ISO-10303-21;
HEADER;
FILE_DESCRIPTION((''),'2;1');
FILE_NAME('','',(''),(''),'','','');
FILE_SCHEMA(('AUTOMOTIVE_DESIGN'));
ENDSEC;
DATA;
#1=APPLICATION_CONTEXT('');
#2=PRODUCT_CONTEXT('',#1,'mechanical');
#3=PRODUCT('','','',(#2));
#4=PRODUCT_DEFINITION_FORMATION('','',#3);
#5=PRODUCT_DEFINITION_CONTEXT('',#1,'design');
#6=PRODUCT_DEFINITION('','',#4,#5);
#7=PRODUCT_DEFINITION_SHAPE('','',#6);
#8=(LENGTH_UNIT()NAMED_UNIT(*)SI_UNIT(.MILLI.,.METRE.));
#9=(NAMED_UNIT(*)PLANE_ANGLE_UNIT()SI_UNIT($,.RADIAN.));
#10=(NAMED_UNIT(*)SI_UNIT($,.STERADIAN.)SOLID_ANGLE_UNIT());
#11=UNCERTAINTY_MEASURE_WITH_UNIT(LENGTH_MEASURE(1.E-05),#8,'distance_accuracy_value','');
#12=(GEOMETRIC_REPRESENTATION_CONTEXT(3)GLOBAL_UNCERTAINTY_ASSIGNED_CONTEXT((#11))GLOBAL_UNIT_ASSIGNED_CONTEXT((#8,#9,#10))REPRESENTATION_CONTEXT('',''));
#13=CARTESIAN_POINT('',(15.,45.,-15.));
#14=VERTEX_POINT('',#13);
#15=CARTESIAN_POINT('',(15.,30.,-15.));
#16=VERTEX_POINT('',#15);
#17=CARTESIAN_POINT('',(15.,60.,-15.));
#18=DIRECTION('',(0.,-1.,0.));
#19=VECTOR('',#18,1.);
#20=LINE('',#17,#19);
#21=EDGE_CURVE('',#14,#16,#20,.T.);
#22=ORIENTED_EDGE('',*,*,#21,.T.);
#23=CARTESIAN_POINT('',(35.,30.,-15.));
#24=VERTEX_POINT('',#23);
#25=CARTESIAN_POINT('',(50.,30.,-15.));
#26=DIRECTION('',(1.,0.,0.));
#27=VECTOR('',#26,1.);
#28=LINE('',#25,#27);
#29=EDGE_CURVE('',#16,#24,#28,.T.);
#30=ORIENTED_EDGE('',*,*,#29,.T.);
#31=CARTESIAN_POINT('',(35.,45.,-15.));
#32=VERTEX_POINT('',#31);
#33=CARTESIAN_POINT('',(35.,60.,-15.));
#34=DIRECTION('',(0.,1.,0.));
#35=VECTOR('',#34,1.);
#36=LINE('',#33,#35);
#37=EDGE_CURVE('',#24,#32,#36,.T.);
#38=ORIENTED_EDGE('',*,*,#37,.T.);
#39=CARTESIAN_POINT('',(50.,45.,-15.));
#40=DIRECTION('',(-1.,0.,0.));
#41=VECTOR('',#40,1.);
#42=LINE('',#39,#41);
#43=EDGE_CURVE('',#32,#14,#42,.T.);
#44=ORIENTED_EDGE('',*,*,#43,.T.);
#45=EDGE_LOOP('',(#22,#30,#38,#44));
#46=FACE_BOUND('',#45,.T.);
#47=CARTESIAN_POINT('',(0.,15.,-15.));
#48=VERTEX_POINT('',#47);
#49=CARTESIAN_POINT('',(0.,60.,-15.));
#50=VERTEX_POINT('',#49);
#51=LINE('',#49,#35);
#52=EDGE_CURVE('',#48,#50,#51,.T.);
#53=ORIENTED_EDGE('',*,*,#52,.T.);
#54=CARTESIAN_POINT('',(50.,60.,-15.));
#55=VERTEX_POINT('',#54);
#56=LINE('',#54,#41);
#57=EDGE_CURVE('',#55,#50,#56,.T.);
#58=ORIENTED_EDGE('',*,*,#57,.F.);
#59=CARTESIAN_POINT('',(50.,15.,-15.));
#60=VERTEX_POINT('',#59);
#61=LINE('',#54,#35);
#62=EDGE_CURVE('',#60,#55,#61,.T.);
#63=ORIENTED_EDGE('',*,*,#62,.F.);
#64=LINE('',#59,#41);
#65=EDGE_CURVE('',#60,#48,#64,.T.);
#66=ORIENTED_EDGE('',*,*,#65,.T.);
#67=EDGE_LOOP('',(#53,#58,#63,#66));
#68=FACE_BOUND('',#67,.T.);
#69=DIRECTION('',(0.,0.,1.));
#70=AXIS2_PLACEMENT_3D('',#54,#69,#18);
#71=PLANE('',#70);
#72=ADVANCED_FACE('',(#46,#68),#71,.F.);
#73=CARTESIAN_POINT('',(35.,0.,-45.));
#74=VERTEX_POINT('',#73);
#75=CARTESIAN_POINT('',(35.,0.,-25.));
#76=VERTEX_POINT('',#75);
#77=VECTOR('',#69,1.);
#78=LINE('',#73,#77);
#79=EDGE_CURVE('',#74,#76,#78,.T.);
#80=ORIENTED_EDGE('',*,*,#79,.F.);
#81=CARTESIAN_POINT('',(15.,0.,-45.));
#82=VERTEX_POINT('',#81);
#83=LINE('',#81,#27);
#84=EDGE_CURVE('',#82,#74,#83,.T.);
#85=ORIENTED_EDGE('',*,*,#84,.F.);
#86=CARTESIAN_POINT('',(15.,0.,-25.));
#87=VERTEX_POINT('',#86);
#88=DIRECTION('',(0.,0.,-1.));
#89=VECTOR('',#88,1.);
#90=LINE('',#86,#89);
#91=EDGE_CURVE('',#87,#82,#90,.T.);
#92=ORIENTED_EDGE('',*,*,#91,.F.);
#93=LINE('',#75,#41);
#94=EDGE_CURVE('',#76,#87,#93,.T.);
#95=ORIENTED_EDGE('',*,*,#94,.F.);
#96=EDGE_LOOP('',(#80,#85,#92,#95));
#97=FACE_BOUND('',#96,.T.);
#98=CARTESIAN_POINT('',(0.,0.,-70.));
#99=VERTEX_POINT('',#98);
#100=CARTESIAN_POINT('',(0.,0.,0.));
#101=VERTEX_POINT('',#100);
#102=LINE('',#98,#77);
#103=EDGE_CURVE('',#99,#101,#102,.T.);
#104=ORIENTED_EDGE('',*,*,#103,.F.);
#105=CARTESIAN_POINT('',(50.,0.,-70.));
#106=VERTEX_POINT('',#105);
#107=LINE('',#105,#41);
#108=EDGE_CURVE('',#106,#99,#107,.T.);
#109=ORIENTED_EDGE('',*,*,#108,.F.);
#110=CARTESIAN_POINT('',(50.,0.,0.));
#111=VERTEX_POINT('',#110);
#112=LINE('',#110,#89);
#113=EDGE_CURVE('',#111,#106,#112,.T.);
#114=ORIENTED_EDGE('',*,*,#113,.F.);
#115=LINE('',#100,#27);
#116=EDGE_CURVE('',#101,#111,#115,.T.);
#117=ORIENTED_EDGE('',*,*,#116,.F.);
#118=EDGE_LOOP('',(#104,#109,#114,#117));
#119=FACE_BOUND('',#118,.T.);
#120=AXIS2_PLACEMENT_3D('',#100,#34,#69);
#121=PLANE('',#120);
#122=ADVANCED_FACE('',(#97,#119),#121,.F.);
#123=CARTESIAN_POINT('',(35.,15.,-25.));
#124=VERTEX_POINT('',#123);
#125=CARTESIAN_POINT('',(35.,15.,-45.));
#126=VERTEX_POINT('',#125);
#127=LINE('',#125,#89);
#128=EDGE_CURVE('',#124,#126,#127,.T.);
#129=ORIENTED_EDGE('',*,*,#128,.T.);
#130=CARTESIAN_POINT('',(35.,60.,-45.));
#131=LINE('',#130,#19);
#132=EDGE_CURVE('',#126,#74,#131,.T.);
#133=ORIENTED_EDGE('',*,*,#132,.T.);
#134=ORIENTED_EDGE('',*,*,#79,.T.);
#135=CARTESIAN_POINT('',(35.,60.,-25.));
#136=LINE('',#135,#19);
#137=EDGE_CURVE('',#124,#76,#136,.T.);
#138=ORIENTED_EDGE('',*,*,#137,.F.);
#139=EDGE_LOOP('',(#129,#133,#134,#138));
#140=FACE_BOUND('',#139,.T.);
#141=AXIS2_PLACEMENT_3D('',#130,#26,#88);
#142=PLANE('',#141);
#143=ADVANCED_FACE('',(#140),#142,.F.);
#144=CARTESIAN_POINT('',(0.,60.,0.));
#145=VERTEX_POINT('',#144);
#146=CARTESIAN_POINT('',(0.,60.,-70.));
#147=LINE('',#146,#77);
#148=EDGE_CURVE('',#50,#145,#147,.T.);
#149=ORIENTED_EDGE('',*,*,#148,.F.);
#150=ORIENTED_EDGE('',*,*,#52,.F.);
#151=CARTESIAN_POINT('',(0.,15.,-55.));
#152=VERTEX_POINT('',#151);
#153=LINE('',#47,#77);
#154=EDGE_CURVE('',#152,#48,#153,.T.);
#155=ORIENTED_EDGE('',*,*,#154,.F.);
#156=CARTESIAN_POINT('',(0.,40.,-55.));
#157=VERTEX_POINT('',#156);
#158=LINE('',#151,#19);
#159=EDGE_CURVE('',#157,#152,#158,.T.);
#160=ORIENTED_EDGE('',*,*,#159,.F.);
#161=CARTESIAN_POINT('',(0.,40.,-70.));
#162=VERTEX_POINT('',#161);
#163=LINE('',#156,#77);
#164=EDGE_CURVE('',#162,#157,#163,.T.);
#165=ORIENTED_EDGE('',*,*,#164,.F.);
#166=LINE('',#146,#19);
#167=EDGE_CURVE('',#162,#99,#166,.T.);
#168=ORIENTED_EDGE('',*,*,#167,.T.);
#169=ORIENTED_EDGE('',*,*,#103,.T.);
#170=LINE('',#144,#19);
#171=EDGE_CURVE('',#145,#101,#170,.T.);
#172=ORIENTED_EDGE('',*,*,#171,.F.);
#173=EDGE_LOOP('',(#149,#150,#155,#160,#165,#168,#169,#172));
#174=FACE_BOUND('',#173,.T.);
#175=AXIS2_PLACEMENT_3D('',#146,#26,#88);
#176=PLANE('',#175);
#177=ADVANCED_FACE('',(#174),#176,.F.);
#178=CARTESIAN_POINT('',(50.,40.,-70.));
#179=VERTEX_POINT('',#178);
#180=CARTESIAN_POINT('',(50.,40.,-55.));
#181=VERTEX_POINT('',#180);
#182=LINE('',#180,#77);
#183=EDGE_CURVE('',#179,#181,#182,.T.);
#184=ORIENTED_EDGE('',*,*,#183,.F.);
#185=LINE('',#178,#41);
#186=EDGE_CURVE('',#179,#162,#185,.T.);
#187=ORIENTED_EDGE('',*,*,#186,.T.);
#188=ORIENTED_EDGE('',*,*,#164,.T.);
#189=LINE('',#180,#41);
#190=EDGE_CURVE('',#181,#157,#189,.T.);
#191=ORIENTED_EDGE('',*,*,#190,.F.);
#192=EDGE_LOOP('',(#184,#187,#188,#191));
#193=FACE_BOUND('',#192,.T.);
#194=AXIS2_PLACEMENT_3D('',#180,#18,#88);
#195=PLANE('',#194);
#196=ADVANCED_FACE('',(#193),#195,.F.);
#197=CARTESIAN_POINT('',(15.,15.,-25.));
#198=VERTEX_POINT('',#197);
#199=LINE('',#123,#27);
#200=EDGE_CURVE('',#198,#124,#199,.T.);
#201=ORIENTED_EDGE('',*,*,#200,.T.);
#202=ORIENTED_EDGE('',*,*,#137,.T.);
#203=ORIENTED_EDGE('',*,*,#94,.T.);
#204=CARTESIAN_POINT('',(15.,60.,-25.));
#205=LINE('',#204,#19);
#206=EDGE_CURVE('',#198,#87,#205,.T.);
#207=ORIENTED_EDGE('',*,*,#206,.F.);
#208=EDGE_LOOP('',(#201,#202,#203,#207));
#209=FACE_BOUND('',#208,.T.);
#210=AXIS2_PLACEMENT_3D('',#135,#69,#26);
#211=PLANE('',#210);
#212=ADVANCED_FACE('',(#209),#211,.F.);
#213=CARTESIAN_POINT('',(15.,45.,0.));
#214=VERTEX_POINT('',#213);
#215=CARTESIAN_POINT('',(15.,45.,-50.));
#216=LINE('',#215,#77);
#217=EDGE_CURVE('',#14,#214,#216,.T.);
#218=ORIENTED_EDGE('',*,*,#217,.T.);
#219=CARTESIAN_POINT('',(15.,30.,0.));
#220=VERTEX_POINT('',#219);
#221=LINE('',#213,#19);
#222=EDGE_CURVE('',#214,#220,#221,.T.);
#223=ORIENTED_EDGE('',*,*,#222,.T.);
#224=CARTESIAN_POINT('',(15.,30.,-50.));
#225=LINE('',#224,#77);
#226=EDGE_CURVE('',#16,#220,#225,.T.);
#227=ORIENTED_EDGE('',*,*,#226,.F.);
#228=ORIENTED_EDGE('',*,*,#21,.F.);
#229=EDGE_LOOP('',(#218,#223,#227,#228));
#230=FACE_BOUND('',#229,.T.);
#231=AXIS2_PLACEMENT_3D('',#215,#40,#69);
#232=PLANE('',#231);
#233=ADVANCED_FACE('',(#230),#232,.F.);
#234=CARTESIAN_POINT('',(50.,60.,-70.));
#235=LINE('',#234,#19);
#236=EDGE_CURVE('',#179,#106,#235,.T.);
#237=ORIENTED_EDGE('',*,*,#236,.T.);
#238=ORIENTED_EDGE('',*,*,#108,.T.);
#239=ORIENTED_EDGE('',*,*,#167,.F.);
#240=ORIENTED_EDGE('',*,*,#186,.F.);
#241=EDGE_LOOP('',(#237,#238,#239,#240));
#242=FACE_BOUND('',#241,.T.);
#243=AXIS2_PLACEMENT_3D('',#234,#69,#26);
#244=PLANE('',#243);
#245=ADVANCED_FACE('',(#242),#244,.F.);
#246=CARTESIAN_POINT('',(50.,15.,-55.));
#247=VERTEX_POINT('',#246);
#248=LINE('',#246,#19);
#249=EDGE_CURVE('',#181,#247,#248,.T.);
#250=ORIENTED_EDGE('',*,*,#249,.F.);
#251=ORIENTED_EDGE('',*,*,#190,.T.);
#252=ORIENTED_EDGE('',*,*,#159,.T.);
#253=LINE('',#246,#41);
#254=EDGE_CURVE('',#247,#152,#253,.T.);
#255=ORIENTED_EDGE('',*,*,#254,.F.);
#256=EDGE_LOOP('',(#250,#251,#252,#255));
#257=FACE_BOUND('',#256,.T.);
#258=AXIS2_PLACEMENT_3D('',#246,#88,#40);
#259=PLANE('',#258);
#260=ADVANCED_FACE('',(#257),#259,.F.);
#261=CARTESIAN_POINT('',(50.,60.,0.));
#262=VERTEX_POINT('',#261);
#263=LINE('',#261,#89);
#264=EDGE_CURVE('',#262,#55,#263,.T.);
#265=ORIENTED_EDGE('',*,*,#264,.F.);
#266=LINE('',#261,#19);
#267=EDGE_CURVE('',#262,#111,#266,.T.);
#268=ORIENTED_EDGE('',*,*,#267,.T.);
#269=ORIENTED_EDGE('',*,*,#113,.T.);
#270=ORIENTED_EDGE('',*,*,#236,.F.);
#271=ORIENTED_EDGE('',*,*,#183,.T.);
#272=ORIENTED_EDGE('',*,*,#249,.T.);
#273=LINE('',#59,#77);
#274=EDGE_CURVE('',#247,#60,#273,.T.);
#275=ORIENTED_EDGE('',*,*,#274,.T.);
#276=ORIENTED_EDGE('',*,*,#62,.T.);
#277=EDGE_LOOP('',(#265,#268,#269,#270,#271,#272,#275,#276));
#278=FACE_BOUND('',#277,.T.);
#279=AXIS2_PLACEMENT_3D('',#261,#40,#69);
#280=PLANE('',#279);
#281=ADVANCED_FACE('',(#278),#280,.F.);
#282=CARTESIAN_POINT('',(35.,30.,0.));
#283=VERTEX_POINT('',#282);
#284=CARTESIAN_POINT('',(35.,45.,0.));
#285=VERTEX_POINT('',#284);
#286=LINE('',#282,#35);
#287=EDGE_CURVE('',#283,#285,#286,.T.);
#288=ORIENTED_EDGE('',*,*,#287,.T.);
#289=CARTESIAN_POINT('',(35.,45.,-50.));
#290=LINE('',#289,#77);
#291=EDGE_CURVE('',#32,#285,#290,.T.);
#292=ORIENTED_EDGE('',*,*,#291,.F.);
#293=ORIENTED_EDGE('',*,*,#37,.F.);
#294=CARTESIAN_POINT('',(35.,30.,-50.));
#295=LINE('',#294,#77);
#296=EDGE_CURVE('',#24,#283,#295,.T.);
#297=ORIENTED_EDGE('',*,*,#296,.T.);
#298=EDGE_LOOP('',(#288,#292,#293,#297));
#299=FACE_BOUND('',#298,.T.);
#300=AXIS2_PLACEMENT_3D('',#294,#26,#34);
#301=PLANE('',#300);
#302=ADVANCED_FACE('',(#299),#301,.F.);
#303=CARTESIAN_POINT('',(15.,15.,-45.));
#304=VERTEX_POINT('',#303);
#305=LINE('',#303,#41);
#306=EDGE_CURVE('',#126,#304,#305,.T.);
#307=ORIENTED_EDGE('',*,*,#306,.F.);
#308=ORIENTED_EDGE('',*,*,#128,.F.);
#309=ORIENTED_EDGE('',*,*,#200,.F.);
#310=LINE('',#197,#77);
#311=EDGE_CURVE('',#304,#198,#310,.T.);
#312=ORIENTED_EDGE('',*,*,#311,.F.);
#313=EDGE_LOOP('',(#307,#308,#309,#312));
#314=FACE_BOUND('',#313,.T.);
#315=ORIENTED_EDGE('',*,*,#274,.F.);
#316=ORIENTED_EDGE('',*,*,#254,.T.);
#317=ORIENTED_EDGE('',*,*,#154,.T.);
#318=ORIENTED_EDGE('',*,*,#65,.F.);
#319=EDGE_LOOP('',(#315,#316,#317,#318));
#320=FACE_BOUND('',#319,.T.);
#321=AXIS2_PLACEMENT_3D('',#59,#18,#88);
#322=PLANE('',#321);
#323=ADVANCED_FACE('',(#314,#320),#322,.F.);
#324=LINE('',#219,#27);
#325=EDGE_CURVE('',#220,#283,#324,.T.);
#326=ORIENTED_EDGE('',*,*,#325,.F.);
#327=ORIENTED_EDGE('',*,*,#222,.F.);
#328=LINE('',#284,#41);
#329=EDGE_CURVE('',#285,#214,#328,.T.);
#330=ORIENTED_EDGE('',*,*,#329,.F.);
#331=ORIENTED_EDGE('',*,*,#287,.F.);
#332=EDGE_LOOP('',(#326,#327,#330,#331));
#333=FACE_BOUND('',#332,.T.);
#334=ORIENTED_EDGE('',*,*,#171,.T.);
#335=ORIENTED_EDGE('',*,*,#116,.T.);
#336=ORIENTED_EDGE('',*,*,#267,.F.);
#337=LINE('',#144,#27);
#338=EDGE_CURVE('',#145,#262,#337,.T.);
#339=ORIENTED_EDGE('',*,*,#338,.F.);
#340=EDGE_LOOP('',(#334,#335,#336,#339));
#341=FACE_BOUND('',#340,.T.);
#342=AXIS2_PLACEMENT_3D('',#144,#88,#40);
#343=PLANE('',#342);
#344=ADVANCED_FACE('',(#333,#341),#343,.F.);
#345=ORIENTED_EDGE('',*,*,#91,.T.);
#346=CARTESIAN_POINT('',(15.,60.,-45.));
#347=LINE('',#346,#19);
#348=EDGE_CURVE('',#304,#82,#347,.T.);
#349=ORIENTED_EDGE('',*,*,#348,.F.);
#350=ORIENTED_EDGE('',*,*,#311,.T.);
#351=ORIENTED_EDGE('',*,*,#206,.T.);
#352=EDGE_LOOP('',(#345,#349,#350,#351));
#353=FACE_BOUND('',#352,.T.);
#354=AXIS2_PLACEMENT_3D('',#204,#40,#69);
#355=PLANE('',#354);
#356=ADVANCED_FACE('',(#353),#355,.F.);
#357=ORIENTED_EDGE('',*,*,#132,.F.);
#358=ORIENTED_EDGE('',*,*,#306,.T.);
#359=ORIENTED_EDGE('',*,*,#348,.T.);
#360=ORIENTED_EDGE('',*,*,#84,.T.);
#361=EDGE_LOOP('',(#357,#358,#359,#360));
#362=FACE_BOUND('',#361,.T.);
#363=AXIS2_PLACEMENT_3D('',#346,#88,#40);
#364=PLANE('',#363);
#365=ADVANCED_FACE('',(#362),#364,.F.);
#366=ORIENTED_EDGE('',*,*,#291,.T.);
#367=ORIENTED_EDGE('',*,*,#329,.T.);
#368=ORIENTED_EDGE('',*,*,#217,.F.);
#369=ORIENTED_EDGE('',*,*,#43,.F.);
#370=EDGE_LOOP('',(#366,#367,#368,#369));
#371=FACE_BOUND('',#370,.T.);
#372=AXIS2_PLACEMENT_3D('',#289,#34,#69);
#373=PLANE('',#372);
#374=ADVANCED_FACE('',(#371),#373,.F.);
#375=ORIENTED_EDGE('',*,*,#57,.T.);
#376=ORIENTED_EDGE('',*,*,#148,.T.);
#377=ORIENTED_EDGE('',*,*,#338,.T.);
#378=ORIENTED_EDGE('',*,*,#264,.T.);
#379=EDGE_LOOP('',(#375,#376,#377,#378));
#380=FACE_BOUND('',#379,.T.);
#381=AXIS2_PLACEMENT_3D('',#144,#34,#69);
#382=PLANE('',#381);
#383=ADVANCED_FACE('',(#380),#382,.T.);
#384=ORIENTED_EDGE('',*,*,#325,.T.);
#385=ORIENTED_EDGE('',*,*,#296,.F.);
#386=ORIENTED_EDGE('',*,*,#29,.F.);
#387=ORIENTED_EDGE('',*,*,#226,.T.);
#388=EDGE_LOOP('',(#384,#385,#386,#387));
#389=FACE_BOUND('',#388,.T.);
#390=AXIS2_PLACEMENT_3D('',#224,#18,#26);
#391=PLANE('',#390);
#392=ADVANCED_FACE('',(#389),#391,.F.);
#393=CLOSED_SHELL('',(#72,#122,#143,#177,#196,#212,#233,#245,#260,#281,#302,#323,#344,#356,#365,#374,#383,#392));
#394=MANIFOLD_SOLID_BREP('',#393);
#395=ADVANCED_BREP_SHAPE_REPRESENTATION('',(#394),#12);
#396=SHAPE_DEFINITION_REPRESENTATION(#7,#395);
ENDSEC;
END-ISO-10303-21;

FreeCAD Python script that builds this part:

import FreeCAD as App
import Part
import Sketcher

V = App.Vector

doc = App.newDocument("Part")
params = doc.addObject("Spreadsheet::Sheet", "Params")
for row, (alias, value) in enumerate([
    ("sketch1_width", "50 mm"),
    ("sketch1_height", "70 mm"),
    ("pad1_length", "60 mm"),
    ("sketch2_width", "20 mm"),
    ("pocket1_length", "60 mm"),
    ("sketch3_width", "45 mm"),
    ("sketch3_width2", "20 mm"),
    ("sketch3_height", "55 mm"),
    ("sketch3_height2", "15 mm"),
    ("pocket2_length", "50 mm"),
    ("sketch4_width", "20 mm"),
    ("sketch4_height", "15 mm"),
    ("pocket3_length", "50 mm"),
], start=1):
    params.set(f"A{row}", alias)
    params.set(f"B{row}", "=" + value)
    params.setAlias(f"B{row}", alias)

body = doc.addObject("PartDesign::Body", "Body")

# Sketch on XZ plane
sketch1 = doc.addObject("Sketcher::SketchObject", "Sketch")
body.addObject(sketch1)
sketch1.AttachmentSupport = (doc.XZ_Plane, [""])
sketch1.MapMode = "FlatFace"
sketch1.addGeometry(Part.LineSegment(V(0, -70, 0), V(0, 0, 0)), False)
sketch1.addGeometry(Part.LineSegment(V(0, 0, 0), V(50, 0, 0)), False)
sketch1.addGeometry(Part.LineSegment(V(50, 0, 0), V(50, -70, 0)), False)
sketch1.addGeometry(Part.LineSegment(V(50, -70, 0), V(0, -70, 0)), False)
sketch1.addConstraint(Sketcher.Constraint("Coincident", 0, 2, 1, 1))
sketch1.addConstraint(Sketcher.Constraint("Coincident", 1, 2, 2, 1))
sketch1.addConstraint(Sketcher.Constraint("Coincident", 2, 2, 3, 1))
sketch1.addConstraint(Sketcher.Constraint("Coincident", 3, 2, 0, 1))
sketch1.addConstraint(Sketcher.Constraint("Vertical", 0))
sketch1.addConstraint(Sketcher.Constraint("Horizontal", 1))
sketch1.addConstraint(Sketcher.Constraint("Vertical", 2))
sketch1.addConstraint(Sketcher.Constraint("Horizontal", 3))
sketch1.addConstraint(Sketcher.Constraint("Coincident", 0, 2, -1, 1))
sketch1.addConstraint(Sketcher.Constraint("DistanceX", 1, 1, 1, 2, 50.0))
sketch1.addConstraint(Sketcher.Constraint("DistanceY", 0, 1, 0, 2, 70.0))
sketch1.setExpression("Constraints[9]", "Params.sketch1_width")
sketch1.setExpression("Constraints[10]", "Params.sketch1_height")
pad1 = doc.addObject("PartDesign::Pad", "Pad")
body.addObject(pad1)
pad1.Profile = sketch1
pad1.setExpression("Length", "Params.pad1_length")
pad1.Reversed = True

# Sketch on XZ plane
sketch2 = doc.addObject("Sketcher::SketchObject", "Sketch001")
body.addObject(sketch2)
sketch2.AttachmentSupport = (doc.XZ_Plane, [""])
sketch2.MapMode = "FlatFace"
sketch2.addGeometry(Part.LineSegment(V(15, -25, 0), V(15, -45, 0)), False)
sketch2.addGeometry(Part.LineSegment(V(15, -45, 0), V(35, -45, 0)), False)
sketch2.addGeometry(Part.LineSegment(V(35, -45, 0), V(35, -25, 0)), False)
sketch2.addGeometry(Part.LineSegment(V(35, -25, 0), V(15, -25, 0)), False)
sketch2.addConstraint(Sketcher.Constraint("Coincident", 0, 2, 1, 1))
sketch2.addConstraint(Sketcher.Constraint("Coincident", 1, 2, 2, 1))
sketch2.addConstraint(Sketcher.Constraint("Coincident", 2, 2, 3, 1))
sketch2.addConstraint(Sketcher.Constraint("Coincident", 3, 2, 0, 1))
sketch2.addConstraint(Sketcher.Constraint("Vertical", 0))
sketch2.addConstraint(Sketcher.Constraint("Horizontal", 1))
sketch2.addConstraint(Sketcher.Constraint("Vertical", 2))
sketch2.addConstraint(Sketcher.Constraint("Horizontal", 3))
sketch2.addConstraint(Sketcher.Constraint("Equal", 3, 0))
sketch2.addConstraint(Sketcher.Constraint("DistanceX", 1, 1, 1, 2, 20.0))
sketch2.addConstraint(Sketcher.Constraint("DistanceX", -1, 1, 0, 2, 15.0))
sketch2.addConstraint(Sketcher.Constraint("DistanceY", 0, 2, -1, 1, 45.0))
sketch2.setExpression("Constraints[9]", "Params.sketch2_width")
pocket1 = doc.addObject("PartDesign::Pocket", "Pocket")
body.addObject(pocket1)
pocket1.Profile = sketch2
pocket1.setExpression("Length", "Params.pocket1_length")

# Sketch on YZ plane
sketch3 = doc.addObject("Sketcher::SketchObject", "Sketch002")
body.addObject(sketch3)
sketch3.AttachmentSupport = (doc.YZ_Plane, [""])
sketch3.MapMode = "FlatFace"
sketch3.addGeometry(Part.LineSegment(V(15, -15, 0), V(60, -15, 0)), False)
sketch3.addGeometry(Part.LineSegment(V(60, -15, 0), V(60, -70, 0)), False)
sketch3.addGeometry(Part.LineSegment(V(60, -70, 0), V(40, -70, 0)), False)
sketch3.addGeometry(Part.LineSegment(V(40, -70, 0), V(40, -55, 0)), False)
sketch3.addGeometry(Part.LineSegment(V(40, -55, 0), V(15, -55, 0)), False)
sketch3.addGeometry(Part.LineSegment(V(15, -55, 0), V(15, -15, 0)), False)
sketch3.addConstraint(Sketcher.Constraint("Coincident", 0, 2, 1, 1))
sketch3.addConstraint(Sketcher.Constraint("Coincident", 1, 2, 2, 1))
sketch3.addConstraint(Sketcher.Constraint("Coincident", 2, 2, 3, 1))
sketch3.addConstraint(Sketcher.Constraint("Coincident", 3, 2, 4, 1))
sketch3.addConstraint(Sketcher.Constraint("Coincident", 4, 2, 5, 1))
sketch3.addConstraint(Sketcher.Constraint("Coincident", 5, 2, 0, 1))
sketch3.addConstraint(Sketcher.Constraint("Horizontal", 0))
sketch3.addConstraint(Sketcher.Constraint("Vertical", 1))
sketch3.addConstraint(Sketcher.Constraint("Horizontal", 2))
sketch3.addConstraint(Sketcher.Constraint("Vertical", 3))
sketch3.addConstraint(Sketcher.Constraint("Horizontal", 4))
sketch3.addConstraint(Sketcher.Constraint("Vertical", 5))
sketch3.addConstraint(Sketcher.Constraint("DistanceX", 0, 1, 0, 2, 45.0))
sketch3.addConstraint(Sketcher.Constraint("DistanceX", 2, 2, 2, 1, 20.0))
sketch3.addConstraint(Sketcher.Constraint("DistanceY", 1, 2, 1, 1, 55.0))
sketch3.addConstraint(Sketcher.Constraint("DistanceY", 3, 1, 3, 2, 15.0))
sketch3.addConstraint(Sketcher.Constraint("DistanceX", -1, 1, 0, 2, 60.0))
sketch3.addConstraint(Sketcher.Constraint("DistanceY", 0, 2, -1, 1, 15.0))
sketch3.setExpression("Constraints[12]", "Params.sketch3_width")
sketch3.setExpression("Constraints[13]", "Params.sketch3_width2")
sketch3.setExpression("Constraints[14]", "Params.sketch3_height")
sketch3.setExpression("Constraints[15]", "Params.sketch3_height2")
pocket2 = doc.addObject("PartDesign::Pocket", "Pocket001")
body.addObject(pocket2)
pocket2.Profile = sketch3
pocket2.setExpression("Length", "Params.pocket2_length")
pocket2.Reversed = True

# Sketch on XY plane
sketch4 = doc.addObject("Sketcher::SketchObject", "Sketch003")
body.addObject(sketch4)
sketch4.AttachmentSupport = (doc.XY_Plane, [""])
sketch4.MapMode = "FlatFace"
sketch4.addGeometry(Part.LineSegment(V(15, 45, 0), V(15, 30, 0)), False)
sketch4.addGeometry(Part.LineSegment(V(15, 30, 0), V(35, 30, 0)), False)
sketch4.addGeometry(Part.LineSegment(V(35, 30, 0), V(35, 45, 0)), False)
sketch4.addGeometry(Part.LineSegment(V(35, 45, 0), V(15, 45, 0)), False)
sketch4.addConstraint(Sketcher.Constraint("Coincident", 0, 2, 1, 1))
sketch4.addConstraint(Sketcher.Constraint("Coincident", 1, 2, 2, 1))
sketch4.addConstraint(Sketcher.Constraint("Coincident", 2, 2, 3, 1))
sketch4.addConstraint(Sketcher.Constraint("Coincident", 3, 2, 0, 1))
sketch4.addConstraint(Sketcher.Constraint("Vertical", 0))
sketch4.addConstraint(Sketcher.Constraint("Horizontal", 1))
sketch4.addConstraint(Sketcher.Constraint("Vertical", 2))
sketch4.addConstraint(Sketcher.Constraint("Horizontal", 3))
sketch4.addConstraint(Sketcher.Constraint("DistanceX", 1, 1, 1, 2, 20.0))
sketch4.addConstraint(Sketcher.Constraint("DistanceY", 0, 2, 0, 1, 15.0))
sketch4.addConstraint(Sketcher.Constraint("DistanceX", -1, 1, 0, 2, 15.0))
sketch4.addConstraint(Sketcher.Constraint("DistanceY", -1, 1, 0, 2, 30.0))
sketch4.setExpression("Constraints[8]", "Params.sketch4_width")
sketch4.setExpression("Constraints[9]", "Params.sketch4_height")
pocket3 = doc.addObject("PartDesign::Pocket", "Pocket002")
body.addObject(pocket3)
pocket3.Profile = sketch4
pocket3.setExpression("Length", "Params.pocket3_length")

doc.recompute()
